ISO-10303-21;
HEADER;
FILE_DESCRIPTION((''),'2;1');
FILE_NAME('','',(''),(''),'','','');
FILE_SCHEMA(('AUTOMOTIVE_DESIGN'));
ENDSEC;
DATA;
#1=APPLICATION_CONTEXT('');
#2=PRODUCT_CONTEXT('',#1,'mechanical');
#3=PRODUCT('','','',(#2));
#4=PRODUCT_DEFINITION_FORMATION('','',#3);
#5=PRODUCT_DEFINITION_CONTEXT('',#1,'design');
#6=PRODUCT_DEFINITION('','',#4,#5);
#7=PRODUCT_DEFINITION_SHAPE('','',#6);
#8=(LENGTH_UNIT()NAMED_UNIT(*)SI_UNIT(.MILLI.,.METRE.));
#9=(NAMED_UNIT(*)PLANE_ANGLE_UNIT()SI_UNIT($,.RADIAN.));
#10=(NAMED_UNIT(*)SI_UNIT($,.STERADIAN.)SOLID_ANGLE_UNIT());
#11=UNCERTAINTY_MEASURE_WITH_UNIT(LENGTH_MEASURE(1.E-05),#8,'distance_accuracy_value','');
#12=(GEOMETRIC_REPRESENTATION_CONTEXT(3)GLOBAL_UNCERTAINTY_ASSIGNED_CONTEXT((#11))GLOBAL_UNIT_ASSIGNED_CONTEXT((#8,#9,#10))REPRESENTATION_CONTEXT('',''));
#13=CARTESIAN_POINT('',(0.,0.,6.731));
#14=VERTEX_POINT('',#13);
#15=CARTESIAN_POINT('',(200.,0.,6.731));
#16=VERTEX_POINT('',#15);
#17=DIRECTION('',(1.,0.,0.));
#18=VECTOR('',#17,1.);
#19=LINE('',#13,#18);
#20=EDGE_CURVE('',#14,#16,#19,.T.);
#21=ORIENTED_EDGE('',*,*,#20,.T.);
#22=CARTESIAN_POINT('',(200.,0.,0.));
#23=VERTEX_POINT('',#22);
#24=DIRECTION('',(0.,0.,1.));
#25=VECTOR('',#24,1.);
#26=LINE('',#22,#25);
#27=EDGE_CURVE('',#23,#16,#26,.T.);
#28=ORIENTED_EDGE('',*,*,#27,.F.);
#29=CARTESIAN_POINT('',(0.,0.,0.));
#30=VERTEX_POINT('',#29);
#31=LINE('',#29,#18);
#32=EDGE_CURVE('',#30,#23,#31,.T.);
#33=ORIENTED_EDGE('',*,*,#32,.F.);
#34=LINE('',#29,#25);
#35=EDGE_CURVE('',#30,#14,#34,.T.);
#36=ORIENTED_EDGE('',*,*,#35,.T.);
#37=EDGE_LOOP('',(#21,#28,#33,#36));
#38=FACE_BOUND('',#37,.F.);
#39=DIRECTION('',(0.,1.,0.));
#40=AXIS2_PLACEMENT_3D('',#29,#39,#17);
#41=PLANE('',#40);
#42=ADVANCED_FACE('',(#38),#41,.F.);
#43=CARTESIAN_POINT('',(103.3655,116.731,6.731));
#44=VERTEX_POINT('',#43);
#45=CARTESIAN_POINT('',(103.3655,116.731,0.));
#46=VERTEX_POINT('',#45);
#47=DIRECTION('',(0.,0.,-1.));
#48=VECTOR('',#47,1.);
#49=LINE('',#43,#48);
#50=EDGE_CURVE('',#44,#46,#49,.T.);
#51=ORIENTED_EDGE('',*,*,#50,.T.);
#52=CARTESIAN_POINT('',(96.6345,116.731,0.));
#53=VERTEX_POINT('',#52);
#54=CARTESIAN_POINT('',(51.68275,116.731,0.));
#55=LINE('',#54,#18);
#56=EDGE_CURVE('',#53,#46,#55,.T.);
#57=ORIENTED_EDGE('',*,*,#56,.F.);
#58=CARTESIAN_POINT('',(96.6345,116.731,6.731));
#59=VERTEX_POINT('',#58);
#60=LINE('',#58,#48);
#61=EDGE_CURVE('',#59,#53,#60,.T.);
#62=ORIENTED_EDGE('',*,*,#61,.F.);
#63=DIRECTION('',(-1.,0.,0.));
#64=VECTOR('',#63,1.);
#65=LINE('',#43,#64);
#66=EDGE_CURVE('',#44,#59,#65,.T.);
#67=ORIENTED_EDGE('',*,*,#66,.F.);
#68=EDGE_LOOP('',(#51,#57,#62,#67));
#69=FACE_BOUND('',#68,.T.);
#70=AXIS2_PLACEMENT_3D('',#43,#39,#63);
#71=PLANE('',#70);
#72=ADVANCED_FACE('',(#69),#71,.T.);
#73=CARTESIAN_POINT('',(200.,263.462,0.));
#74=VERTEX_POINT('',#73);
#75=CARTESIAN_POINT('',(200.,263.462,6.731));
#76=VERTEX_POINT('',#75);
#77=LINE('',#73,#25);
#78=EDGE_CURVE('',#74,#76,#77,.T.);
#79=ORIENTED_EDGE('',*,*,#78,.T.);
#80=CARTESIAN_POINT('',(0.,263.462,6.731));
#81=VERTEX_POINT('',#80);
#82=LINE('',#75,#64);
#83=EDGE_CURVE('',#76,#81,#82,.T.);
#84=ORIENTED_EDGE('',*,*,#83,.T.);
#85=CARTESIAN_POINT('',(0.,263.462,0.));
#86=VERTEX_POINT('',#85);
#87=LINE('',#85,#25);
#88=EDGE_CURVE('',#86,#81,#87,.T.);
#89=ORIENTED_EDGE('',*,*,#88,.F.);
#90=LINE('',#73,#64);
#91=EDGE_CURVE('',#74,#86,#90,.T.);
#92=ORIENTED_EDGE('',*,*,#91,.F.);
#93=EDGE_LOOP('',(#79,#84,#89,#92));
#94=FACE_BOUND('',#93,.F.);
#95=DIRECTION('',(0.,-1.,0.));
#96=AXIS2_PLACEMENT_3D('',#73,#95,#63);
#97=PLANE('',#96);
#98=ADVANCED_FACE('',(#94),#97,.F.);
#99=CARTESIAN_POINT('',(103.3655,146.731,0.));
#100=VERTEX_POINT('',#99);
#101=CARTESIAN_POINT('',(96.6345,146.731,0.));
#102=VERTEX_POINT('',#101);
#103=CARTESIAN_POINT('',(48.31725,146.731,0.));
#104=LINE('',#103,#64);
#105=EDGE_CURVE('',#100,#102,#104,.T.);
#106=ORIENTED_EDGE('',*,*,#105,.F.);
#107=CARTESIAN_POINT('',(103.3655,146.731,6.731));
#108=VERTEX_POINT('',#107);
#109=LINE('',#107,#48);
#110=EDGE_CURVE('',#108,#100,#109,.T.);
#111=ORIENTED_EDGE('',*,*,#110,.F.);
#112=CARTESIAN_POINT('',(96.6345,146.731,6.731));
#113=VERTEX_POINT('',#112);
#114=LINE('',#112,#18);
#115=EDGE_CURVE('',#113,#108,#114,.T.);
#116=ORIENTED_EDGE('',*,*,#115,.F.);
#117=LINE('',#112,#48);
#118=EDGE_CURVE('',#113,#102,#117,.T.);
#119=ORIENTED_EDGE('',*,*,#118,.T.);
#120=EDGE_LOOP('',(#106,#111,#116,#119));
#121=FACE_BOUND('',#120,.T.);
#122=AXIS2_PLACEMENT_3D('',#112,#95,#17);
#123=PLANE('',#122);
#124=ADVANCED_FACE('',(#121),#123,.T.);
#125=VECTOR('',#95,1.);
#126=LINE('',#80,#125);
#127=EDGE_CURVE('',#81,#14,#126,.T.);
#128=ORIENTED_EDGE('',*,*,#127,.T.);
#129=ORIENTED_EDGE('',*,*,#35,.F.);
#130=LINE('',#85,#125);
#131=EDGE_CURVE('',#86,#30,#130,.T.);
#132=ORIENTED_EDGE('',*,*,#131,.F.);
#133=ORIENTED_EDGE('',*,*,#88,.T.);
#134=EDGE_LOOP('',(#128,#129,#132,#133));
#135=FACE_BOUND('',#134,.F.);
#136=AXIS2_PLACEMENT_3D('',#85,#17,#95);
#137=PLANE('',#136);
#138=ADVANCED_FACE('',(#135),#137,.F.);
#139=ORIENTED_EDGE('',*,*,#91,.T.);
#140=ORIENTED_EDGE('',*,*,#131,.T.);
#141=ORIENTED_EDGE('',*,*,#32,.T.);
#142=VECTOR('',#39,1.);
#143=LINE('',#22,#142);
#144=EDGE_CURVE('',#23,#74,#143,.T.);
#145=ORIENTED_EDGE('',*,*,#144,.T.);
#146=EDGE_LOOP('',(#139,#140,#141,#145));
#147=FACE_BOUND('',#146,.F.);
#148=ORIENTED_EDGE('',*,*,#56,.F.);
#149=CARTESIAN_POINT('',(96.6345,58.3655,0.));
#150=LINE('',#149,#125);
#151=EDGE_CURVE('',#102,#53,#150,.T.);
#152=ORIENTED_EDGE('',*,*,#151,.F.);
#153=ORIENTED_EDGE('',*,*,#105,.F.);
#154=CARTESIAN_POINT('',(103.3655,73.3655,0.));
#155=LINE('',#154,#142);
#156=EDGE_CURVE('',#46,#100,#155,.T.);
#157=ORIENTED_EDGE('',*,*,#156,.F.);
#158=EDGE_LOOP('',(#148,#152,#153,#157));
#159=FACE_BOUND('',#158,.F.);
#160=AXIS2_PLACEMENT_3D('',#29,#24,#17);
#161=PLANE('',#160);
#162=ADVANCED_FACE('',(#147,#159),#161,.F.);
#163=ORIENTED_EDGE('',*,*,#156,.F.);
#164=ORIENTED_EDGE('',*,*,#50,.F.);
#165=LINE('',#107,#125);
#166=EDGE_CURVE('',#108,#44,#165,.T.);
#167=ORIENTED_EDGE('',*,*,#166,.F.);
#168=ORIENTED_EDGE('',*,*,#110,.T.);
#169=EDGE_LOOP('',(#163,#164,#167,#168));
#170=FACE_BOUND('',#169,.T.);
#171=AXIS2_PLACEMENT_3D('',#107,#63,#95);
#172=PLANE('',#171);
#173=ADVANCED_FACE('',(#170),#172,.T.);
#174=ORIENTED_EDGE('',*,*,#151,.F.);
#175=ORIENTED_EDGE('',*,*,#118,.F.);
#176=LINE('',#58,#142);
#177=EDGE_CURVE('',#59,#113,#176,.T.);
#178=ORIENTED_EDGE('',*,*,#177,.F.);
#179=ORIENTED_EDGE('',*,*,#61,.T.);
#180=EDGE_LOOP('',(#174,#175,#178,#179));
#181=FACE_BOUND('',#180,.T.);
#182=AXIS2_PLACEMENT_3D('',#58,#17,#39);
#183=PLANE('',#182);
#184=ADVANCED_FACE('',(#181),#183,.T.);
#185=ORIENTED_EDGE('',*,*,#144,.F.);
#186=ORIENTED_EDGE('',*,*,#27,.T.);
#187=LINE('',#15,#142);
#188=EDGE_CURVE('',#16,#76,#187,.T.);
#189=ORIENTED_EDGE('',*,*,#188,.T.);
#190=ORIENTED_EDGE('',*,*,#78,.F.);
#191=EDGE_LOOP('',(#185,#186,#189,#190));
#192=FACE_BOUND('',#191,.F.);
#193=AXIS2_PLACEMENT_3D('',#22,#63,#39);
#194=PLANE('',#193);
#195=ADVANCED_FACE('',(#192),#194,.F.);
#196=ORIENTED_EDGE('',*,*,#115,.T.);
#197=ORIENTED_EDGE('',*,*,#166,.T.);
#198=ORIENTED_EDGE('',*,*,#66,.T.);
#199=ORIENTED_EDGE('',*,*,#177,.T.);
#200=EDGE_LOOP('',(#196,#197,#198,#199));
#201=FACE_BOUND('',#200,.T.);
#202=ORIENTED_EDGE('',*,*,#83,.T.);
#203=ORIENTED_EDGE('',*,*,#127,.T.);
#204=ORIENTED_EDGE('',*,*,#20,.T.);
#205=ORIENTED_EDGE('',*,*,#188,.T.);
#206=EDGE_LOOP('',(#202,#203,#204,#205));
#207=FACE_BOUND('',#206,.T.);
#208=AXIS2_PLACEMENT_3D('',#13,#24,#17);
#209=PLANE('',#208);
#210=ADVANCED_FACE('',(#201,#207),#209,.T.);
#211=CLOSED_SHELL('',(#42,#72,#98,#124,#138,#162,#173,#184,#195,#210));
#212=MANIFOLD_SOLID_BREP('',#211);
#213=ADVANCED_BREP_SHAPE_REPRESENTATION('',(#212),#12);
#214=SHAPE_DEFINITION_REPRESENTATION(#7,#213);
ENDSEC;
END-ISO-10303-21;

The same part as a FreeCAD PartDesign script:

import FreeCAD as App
import Part
import Sketcher
from FreeCAD import Vector


def add_polygon(sketch, points):
    """Adds a closed chain of lines whose ends are joined by coincident constraints."""
    first, n = sketch.GeometryCount, len(points)
    for a, b in zip(points, points[1:] + points[:1]):
        sketch.addGeometry(Part.LineSegment(App.Vector(*a, 0), App.Vector(*b, 0)), False)
    for i in range(n):
        sketch.addConstraint(Sketcher.Constraint("Coincident", first + i, 2, first + (i + 1) % n, 1))

doc = App.newDocument("Part")
body = doc.addObject("PartDesign::Body", "Body")

sketch1 = body.newObject("Sketcher::SketchObject", "Sketch")
sketch1.AttachmentSupport = (doc.getObject("XY_Plane"), [""])
sketch1.MapMode = "FlatFace"
add_polygon(sketch1, [(0, 263.462), (0, 0), (200, 0), (200, 263.462)])
sketch1.addConstraint(Sketcher.Constraint("Vertical", 0))
sketch1.addConstraint(Sketcher.Constraint("Horizontal", 1))
sketch1.addConstraint(Sketcher.Constraint("Vertical", 2))
sketch1.addConstraint(Sketcher.Constraint("Horizontal", 3))
sketch1.addConstraint(Sketcher.Constraint("Coincident", 0, 2, -1, 1))
sketch1.addConstraint(Sketcher.Constraint("DistanceX", 1, 1, 1, 2, 200.0))
sketch1.addConstraint(Sketcher.Constraint("DistanceY", 0, 2, 0, 1, 263.462))
pad1 = body.newObject("PartDesign::Pad", "Pad")
pad1.Profile = sketch1
pad1.Length = 6.731

sketch2 = body.newObject("Sketcher::SketchObject", "Sketch001")
sketch2.AttachmentSupport = (doc.getObject("XY_Plane"), [""])
sketch2.MapMode = "FlatFace"
sketch2.AttachmentOffset = App.Placement(Vector(0, 0, 6.731), App.Rotation())
add_polygon(sketch2, [(103.3655, 146.731), (96.6345, 146.731), (96.6345, 116.731), (103.3655, 116.731)])
sketch2.addConstraint(Sketcher.Constraint("Horizontal", 0))
sketch2.addConstraint(Sketcher.Constraint("Vertical", 1))
sketch2.addConstraint(Sketcher.Constraint("Horizontal", 2))
sketch2.addConstraint(Sketcher.Constraint("Vertical", 3))
sketch2.addConstraint(Sketcher.Constraint("DistanceY", 1, 2, 1, 1, 30.0))
sketch2.addConstraint(Sketcher.Constraint("DistanceX", 0, 2, 0, 1, 6.731))
sketch2.addConstraint(Sketcher.Constraint("DistanceY", -1, 1, 0, 2, 146.731))
sketch2.addConstraint(Sketcher.Constraint("DistanceX", -1, 1, 0, 2, 96.6345))
pocket1 = body.newObject("PartDesign::Pocket", "Pocket")
pocket1.Profile = sketch2
pocket1.Type = "UpToFirst"

doc.recompute()
